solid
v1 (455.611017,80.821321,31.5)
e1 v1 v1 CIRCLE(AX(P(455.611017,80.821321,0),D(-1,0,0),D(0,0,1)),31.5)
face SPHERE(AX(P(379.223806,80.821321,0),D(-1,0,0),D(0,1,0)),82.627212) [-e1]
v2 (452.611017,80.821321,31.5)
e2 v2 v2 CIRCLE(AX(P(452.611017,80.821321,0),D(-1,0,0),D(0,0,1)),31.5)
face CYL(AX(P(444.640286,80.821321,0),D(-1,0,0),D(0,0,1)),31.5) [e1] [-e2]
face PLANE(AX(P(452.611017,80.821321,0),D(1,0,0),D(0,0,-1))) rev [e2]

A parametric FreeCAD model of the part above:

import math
import FreeCAD as App
import Part
import Sketcher
Q = App.Units.Quantity

doc = App.newDocument("Part")
body = doc.addObject("PartDesign::Body", "Body")

sketch1 = body.newObject("Sketcher::SketchObject", "Sketch")
sketch1.AttachmentSupport = (doc.getObject("XY_Plane"), [""])
sketch1.MapMode = "FlatFace"
sketch1.addGeometry([
    Part.LineSegment(App.Vector(452.611017, 112.321321, 0), App.Vector(452.611017, 80.821321, 0)),
    Part.LineSegment(App.Vector(452.611017, 80.821321, 0), App.Vector(461.851017, 80.821321, 0)),
    Part.ArcOfCircle(Part.Circle(App.Vector(379.223806, 80.821321, 0), App.Vector(0, 0, 1), 82.627212), math.radians(0), math.radians(22.409914)),
    Part.LineSegment(App.Vector(455.611017, 112.321321, 0), App.Vector(452.611017, 112.321321, 0)),
], False)
sketch1.addGeometry(Part.LineSegment(App.Vector(379.223806, 80.821321, 0), App.Vector(461.851017, 80.821321, 0)), True)
sketch1.addConstraint([
    Sketcher.Constraint("Coincident", 0, 2, 1, 1),
    Sketcher.Constraint("Coincident", 1, 2, 2, 1),
    Sketcher.Constraint("Coincident", 2, 2, 3, 1),
    Sketcher.Constraint("Coincident", 3, 2, 0, 1),
    Sketcher.Constraint("Vertical", 0),
    Sketcher.Constraint("Horizontal", 1),
    Sketcher.Constraint("Horizontal", 3),
    Sketcher.Constraint("Horizontal", 4),
    Sketcher.Constraint("Coincident", 4, 1, 2, 3),
    Sketcher.Constraint("Coincident", 4, 2, 1, 2),
    Sketcher.Constraint("DistanceX", 3, 2, 3, 1, Q("3 mm")),
    Sketcher.Constraint("DistanceY", 0, 2, 0, 1, Q("31.5 mm")),
    Sketcher.Constraint("DistanceX", 1, 1, 1, 2, Q("9.24 mm")),
    Sketcher.Constraint("DistanceY", -1, 1, 2, 3, Q("80.821321 mm")),
    Sketcher.Constraint("DistanceX", -1, 1, 2, 3, Q("379.223806 mm")),
])
revolution = body.newObject("PartDesign::Revolution", "Revolution")
revolution.Profile = sketch1
revolution.ReferenceAxis = (sketch1, ["Axis0"])
revolution.Angle = 360

doc.recompute()
